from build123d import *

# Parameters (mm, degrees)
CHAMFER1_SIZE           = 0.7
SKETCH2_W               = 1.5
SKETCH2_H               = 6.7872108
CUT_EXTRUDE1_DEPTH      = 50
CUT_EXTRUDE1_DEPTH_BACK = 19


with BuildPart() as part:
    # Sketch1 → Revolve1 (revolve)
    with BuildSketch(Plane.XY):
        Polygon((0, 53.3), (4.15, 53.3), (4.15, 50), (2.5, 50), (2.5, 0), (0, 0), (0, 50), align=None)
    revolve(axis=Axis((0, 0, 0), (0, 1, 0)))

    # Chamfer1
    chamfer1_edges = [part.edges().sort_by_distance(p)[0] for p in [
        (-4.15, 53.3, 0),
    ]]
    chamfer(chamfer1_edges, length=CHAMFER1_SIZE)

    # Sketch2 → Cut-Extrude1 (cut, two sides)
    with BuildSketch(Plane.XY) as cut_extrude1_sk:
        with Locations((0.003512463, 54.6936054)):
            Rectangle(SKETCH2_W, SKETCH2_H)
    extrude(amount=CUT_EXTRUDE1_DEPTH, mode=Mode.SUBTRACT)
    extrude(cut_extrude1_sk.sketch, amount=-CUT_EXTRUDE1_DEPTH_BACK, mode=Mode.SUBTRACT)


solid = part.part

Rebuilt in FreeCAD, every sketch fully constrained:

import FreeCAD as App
import Part
import Sketcher

V = App.Vector
Q = App.Units.Quantity


def edges_at(feature, points):
    """Names of the edges that pass closest to the given points."""
    edges = feature.Shape.Edges
    near = lambda p: min(range(len(edges)), key=lambda i: edges[i].distToShape(Part.Vertex(*p))[0])
    return sorted({f"Edge{near(p) + 1}" for p in points})


def add_polygon(sketch, points):
    """Adds a closed chain of lines whose ends are joined by coincident constraints."""
    first, n = sketch.GeometryCount, len(points)
    for a, b in zip(points, points[1:] + points[:1]):
        sketch.addGeometry(Part.LineSegment(App.Vector(*a, 0), App.Vector(*b, 0)), False)
    for i in range(n):
        sketch.addConstraint(Sketcher.Constraint("Coincident", first + i, 2, first + (i + 1) % n, 1))

doc = App.newDocument("Part")
body = doc.addObject("PartDesign::Body", "Body")

# Sketch on XY plane
sketch1 = doc.addObject("Sketcher::SketchObject", "Sketch")
body.addObject(sketch1)
sketch1.AttachmentSupport = (doc.XY_Plane, [""])
sketch1.MapMode = "FlatFace"
add_polygon(sketch1, [(4.2, 53.3), (0, 53.3), (0, 0), (2.5, 0), (2.5, 50), (4.2, 50)])  # lines 0-5
sketch1.addConstraint([
    Sketcher.Constraint("Horizontal", 0),
    Sketcher.Constraint("Vertical", 1),
    Sketcher.Constraint("Horizontal", 2),
    Sketcher.Constraint("Vertical", 3),
    Sketcher.Constraint("Horizontal", 4),
    Sketcher.Constraint("Vertical", 5),
    Sketcher.Constraint("Coincident", 1, 2, -1, 1),
    Sketcher.Constraint("DistanceY", 3, 1, 3, 2, Q("50 mm")),
    Sketcher.Constraint("DistanceX", 2, 1, 2, 2, Q("2.5 mm")),
    Sketcher.Constraint("DistanceY", 1, 2, 1, 1, Q("53.3 mm")),
    Sketcher.Constraint("DistanceX", 0, 2, 0, 1, Q("4.15 mm")),
])
revolution = doc.addObject("PartDesign::Revolution", "Revolution")
body.addObject(revolution)
revolution.Profile = sketch1
revolution.ReferenceAxis = (sketch1, ["V_Axis"])
revolution.Angle = 360
doc.recompute()

chamfer = doc.addObject("PartDesign::Chamfer", "Chamfer")
body.addObject(chamfer)
chamfer.Base = (revolution, edges_at(revolution, [(-4.15, 53.3, 0)]))
chamfer.Size = 0.7

# Sketch on XY plane
sketch2 = doc.addObject("Sketcher::SketchObject", "Sketch001")
body.addObject(sketch2)
sketch2.AttachmentSupport = (doc.XY_Plane, [""])
sketch2.MapMode = "FlatFace"
add_polygon(sketch2, [(-0.7, 58.1), (-0.7, 51.3), (0.8, 51.3), (0.8, 58.1)])  # lines 0-3
sketch2.addConstraint([
    Sketcher.Constraint("Vertical", 0),
    Sketcher.Constraint("Horizontal", 1),
    Sketcher.Constraint("Vertical", 2),
    Sketcher.Constraint("Horizontal", 3),
    Sketcher.Constraint("DistanceX", 1, 1, 1, 2, Q("1.5 mm")),
    Sketcher.Constraint("DistanceY", -1, 1, 0, 2, Q("51.3 mm")),
    Sketcher.Constraint("DistanceY", 0, 2, 0, 1, Q("6.787211 mm")),
    Sketcher.Constraint("DistanceX", 0, 2, -1, 1, Q("0.746488 mm")),
])
pocket1 = doc.addObject("PartDesign::Pocket", "Pocket")
body.addObject(pocket1)
pocket1.Profile = sketch2
pocket1.Type = "ThroughAll"
pocket1.Midplane = True

doc.recompute()
